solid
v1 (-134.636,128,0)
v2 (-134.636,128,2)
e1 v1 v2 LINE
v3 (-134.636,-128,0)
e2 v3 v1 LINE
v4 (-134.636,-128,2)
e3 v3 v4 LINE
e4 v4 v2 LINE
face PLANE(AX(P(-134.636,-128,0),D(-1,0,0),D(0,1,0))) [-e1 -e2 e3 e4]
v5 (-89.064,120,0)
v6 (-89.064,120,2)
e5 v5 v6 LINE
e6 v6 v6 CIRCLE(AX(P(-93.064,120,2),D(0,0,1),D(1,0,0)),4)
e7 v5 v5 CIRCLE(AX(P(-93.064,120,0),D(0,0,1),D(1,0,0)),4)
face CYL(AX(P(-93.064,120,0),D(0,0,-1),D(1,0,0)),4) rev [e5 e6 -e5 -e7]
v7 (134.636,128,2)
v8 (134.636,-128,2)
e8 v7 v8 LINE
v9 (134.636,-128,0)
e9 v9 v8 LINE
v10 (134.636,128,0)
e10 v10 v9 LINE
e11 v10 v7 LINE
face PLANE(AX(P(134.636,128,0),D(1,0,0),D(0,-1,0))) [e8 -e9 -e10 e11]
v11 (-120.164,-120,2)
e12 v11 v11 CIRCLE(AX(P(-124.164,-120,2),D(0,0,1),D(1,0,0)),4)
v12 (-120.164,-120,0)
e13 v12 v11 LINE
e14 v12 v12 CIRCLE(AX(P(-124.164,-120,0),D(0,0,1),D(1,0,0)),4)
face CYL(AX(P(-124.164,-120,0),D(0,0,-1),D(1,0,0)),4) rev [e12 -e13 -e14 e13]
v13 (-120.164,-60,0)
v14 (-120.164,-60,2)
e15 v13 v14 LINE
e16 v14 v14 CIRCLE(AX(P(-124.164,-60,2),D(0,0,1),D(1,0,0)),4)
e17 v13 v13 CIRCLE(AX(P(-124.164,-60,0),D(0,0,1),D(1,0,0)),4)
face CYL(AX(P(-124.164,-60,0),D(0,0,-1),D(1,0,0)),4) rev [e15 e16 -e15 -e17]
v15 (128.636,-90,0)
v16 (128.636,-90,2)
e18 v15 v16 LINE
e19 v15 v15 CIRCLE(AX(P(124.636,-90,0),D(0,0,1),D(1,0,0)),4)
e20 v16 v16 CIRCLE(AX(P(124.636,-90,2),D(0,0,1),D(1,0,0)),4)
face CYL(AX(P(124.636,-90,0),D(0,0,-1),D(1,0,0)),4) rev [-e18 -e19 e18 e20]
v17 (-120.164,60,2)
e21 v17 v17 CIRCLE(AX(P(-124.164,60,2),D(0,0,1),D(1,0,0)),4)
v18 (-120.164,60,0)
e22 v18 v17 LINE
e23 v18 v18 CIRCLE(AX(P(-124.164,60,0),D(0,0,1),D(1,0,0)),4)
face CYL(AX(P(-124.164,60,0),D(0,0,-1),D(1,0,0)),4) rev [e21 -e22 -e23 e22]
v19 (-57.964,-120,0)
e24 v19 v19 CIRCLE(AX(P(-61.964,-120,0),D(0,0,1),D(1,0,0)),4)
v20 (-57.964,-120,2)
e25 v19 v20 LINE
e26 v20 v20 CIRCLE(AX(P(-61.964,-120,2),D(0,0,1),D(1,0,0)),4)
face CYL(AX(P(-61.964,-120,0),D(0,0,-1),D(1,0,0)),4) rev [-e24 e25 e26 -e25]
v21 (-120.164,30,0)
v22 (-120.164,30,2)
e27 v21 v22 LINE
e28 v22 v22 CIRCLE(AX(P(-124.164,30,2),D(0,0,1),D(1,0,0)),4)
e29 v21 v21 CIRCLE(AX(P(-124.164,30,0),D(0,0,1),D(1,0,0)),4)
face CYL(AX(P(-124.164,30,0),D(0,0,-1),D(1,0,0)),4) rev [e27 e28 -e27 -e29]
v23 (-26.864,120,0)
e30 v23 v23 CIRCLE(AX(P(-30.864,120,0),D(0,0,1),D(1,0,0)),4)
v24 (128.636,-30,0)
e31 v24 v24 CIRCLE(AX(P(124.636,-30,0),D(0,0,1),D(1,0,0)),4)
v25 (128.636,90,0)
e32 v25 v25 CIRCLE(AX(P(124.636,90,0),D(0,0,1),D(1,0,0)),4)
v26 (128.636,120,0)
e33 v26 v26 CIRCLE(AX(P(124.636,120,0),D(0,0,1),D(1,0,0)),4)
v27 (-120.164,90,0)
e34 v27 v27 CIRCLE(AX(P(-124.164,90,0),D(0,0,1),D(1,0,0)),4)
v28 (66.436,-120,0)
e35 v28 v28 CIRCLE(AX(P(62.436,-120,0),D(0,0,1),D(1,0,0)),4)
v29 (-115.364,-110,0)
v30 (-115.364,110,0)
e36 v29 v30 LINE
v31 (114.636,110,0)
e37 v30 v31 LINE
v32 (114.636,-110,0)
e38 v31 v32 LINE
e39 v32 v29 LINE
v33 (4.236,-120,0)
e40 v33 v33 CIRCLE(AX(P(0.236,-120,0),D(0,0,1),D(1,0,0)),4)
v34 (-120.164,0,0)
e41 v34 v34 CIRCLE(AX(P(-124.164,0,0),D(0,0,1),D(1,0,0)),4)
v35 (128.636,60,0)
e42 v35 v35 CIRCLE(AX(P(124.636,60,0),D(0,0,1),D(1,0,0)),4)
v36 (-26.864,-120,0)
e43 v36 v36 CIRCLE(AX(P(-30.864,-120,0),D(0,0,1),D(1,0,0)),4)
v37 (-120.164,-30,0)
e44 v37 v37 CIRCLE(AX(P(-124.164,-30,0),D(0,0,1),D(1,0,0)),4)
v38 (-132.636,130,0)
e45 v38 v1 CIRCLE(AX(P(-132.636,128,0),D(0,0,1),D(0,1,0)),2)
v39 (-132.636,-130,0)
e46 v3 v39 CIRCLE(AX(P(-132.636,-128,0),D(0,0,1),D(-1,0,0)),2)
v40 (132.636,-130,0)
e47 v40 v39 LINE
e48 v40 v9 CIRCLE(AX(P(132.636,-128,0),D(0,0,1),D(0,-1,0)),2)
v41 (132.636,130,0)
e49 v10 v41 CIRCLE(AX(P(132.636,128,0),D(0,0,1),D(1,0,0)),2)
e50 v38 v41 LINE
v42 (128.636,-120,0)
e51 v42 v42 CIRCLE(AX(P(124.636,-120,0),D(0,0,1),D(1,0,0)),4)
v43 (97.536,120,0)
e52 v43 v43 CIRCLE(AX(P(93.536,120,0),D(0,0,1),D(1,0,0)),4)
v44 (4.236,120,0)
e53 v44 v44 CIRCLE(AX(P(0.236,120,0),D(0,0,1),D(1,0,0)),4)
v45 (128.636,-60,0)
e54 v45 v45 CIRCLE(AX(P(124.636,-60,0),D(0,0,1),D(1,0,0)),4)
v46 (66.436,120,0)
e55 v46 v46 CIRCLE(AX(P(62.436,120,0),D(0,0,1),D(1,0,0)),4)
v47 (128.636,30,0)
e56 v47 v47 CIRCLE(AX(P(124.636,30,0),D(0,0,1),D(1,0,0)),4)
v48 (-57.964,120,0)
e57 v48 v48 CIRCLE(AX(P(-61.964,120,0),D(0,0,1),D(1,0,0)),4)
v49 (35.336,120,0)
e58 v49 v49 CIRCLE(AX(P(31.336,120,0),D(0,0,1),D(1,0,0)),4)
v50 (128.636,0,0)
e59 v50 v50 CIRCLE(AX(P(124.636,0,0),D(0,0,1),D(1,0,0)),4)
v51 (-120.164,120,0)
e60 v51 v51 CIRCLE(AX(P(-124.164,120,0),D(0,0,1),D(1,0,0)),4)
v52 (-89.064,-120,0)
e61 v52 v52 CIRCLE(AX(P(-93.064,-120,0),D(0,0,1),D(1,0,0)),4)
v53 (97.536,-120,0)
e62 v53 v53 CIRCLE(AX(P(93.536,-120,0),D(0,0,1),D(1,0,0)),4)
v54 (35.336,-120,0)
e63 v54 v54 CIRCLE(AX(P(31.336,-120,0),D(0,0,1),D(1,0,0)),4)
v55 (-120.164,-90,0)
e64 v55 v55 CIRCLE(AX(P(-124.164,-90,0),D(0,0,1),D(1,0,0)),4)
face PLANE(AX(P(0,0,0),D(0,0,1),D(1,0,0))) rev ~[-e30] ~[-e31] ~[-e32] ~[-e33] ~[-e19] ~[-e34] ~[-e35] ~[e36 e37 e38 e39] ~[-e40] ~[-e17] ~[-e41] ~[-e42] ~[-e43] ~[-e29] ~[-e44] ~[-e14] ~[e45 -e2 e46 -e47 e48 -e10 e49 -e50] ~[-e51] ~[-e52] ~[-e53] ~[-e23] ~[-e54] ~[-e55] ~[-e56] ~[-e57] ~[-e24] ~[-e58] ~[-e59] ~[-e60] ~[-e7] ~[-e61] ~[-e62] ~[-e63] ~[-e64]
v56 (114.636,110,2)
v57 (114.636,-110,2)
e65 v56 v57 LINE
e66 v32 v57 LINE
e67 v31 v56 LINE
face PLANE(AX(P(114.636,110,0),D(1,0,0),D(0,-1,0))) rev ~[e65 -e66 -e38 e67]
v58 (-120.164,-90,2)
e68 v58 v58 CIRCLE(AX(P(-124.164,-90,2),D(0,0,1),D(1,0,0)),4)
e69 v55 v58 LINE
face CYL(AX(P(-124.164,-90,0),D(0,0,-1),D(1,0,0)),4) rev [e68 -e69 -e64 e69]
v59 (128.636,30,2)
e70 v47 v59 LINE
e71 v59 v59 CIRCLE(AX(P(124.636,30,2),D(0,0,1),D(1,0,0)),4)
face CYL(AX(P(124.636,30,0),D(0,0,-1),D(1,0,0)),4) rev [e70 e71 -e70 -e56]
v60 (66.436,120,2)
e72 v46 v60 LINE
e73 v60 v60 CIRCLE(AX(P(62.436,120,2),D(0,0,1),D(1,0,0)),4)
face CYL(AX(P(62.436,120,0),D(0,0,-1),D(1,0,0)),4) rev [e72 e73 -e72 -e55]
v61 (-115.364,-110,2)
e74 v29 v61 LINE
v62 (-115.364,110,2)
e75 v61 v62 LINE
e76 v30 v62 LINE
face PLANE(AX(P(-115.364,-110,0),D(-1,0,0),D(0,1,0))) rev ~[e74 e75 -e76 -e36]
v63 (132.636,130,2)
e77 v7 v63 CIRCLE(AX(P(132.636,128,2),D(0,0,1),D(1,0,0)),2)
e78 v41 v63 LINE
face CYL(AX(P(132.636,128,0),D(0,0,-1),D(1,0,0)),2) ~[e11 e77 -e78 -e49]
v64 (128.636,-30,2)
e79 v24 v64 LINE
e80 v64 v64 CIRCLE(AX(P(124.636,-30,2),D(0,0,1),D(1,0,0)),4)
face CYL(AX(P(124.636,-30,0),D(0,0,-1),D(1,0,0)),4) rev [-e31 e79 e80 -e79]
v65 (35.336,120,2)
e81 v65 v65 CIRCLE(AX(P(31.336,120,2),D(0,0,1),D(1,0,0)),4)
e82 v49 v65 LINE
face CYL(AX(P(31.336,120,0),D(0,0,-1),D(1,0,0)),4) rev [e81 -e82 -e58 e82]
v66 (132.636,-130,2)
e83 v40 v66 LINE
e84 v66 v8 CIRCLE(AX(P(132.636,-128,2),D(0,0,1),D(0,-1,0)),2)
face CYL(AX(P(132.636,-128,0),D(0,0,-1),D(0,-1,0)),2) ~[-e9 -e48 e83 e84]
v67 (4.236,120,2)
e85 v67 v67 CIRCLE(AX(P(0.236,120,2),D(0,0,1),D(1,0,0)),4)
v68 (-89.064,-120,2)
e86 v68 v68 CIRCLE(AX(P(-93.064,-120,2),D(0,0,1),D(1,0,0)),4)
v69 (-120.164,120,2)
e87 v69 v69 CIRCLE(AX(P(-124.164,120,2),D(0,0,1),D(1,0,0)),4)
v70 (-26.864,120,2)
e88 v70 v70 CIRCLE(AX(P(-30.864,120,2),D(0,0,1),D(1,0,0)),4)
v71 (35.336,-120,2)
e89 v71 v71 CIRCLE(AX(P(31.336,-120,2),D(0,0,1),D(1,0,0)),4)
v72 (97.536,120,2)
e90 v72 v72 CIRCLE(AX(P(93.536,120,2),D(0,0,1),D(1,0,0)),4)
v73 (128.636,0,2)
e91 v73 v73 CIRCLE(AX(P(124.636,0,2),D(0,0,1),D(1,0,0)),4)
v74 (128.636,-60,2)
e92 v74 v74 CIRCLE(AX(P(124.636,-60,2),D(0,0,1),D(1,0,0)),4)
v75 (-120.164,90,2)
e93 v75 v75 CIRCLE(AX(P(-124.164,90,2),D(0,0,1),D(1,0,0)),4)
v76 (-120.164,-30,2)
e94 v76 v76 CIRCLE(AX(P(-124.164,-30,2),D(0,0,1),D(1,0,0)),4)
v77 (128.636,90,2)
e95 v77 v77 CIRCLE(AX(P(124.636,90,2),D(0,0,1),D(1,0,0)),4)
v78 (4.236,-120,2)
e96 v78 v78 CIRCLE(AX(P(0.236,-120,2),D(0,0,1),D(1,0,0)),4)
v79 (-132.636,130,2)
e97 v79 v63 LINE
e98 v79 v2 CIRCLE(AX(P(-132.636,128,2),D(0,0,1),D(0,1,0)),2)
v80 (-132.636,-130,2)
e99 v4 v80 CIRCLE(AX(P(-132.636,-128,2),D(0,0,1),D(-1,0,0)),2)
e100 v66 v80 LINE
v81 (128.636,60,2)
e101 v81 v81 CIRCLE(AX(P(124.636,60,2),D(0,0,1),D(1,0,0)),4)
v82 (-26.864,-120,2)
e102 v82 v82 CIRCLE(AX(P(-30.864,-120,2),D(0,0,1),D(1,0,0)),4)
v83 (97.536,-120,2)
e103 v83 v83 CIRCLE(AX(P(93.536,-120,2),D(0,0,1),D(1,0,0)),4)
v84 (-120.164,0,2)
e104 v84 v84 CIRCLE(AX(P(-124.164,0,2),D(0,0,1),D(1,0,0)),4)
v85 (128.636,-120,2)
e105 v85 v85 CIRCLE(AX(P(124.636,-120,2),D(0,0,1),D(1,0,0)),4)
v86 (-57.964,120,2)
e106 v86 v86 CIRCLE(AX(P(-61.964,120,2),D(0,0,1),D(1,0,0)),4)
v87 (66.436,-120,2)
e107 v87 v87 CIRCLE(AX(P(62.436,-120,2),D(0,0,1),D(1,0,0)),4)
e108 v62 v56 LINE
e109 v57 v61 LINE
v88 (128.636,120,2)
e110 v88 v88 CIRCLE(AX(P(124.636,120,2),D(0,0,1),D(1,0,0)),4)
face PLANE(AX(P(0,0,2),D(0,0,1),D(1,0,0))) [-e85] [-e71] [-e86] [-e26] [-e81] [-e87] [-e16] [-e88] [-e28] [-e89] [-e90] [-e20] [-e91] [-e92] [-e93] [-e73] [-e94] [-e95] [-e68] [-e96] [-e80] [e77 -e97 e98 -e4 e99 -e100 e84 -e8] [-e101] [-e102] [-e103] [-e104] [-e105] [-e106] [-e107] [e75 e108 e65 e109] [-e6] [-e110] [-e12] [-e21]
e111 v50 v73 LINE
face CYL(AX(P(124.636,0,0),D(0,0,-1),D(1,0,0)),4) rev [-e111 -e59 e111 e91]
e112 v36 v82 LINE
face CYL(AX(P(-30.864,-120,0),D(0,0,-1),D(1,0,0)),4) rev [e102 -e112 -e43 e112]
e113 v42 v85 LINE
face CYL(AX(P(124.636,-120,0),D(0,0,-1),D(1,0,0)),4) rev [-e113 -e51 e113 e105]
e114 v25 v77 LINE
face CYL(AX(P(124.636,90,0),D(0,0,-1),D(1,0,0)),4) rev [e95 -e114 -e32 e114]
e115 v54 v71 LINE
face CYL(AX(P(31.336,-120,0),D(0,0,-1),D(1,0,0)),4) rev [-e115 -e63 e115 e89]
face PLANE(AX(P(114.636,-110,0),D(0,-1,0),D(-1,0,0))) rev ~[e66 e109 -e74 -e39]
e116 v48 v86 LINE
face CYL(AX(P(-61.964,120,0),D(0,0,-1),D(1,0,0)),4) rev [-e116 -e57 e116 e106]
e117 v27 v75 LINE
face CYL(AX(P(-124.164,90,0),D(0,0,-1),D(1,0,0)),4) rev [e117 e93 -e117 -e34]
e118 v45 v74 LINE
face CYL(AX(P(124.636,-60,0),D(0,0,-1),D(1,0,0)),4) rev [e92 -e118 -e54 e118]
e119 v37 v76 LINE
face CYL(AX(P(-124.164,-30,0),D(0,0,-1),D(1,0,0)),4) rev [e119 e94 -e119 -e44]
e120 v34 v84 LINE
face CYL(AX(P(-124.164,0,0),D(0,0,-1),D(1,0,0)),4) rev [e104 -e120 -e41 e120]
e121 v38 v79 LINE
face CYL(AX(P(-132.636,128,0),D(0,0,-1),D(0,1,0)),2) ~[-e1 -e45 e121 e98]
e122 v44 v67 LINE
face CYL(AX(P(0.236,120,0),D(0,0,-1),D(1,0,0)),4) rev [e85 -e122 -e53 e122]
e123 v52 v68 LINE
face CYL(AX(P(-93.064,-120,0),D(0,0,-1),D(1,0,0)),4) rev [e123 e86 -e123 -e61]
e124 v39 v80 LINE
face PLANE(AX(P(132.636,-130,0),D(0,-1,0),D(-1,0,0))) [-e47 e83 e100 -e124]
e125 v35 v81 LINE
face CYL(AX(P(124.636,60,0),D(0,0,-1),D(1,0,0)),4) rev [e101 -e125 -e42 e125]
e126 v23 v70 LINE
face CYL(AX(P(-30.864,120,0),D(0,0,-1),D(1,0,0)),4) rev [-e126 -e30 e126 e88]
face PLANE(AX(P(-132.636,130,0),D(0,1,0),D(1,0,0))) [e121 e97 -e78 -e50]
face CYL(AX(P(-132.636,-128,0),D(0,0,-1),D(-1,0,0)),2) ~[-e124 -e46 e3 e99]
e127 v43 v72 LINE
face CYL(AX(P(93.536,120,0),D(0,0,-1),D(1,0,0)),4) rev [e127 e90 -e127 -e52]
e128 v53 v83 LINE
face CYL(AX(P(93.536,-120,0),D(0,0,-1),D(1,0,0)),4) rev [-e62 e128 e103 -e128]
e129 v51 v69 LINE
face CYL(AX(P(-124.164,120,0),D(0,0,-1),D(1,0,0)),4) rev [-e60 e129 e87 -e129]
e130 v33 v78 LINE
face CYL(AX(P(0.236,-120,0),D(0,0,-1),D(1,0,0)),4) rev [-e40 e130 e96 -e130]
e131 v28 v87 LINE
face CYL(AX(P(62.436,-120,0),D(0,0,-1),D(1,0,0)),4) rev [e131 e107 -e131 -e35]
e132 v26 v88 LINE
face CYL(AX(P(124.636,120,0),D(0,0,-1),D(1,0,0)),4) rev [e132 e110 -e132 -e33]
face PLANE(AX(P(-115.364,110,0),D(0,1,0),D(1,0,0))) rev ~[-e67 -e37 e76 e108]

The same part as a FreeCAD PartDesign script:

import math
import FreeCAD as App
import Part
import Sketcher
from FreeCAD import Vector
Q = App.Units.Quantity

doc = App.newDocument("Part")
params = doc.addObject("Spreadsheet::Sheet", "Params")
for row, (alias, value) in enumerate([
    ("sketch1_diameter", "8 mm"),
    ("sketch1_radius", "2 mm"),
    ("sketch1_width", "230 mm"),
    ("sketch1_height", "256 mm"),
    ("sketch1_height2", "220 mm"),
    ("pad1_length", "2 mm"),
], start=1):
    params.set(f"A{row}", alias)
    params.set(f"B{row}", "=" + value)
    params.setAlias(f"B{row}", alias)

body = doc.addObject("PartDesign::Body", "Body")

# Sketch on XY plane
sketch1 = body.newObject("Sketcher::SketchObject", "Sketch")
sketch1.AttachmentSupport = (doc.getObject("XY_Plane"), [""])
sketch1.MapMode = "FlatFace"
sketch1.addGeometry([
    Part.LineSegment(Vector(-132.6, -130, 0), Vector(132.6, -130, 0)),  # 0
    Part.ArcOfCircle(Part.Circle(Vector(132.6, -128, 0), Vector(0, 0, 1), 2), math.radians(-90), math.radians(0)),  # 1
    Part.LineSegment(Vector(134.6, -128, 0), Vector(134.6, 128, 0)),  # 2
    Part.ArcOfCircle(Part.Circle(Vector(132.6, 128, 0), Vector(0, 0, 1), 2), math.radians(0), math.radians(90)),  # 3
    Part.LineSegment(Vector(132.6, 130, 0), Vector(-132.6, 130, 0)),  # 4
    Part.ArcOfCircle(Part.Circle(Vector(-132.6, 128, 0), Vector(0, 0, 1), 2), math.radians(90), math.radians(180)),  # 5
    Part.LineSegment(Vector(-134.6, 128, 0), Vector(-134.6, -128, 0)),  # 6
    Part.ArcOfCircle(Part.Circle(Vector(-132.6, -128, 0), Vector(0, 0, 1), 2), math.radians(180), math.radians(270)),  # 7
    Part.Circle(Vector(-124.2, -120, 0), Vector(0, 0, 1), 4),  # 8
    Part.Circle(Vector(-93.1, -120, 0), Vector(0, 0, 1), 4),  # 9
    Part.Circle(Vector(-124.2, -90, 0), Vector(0, 0, 1), 4),  # 10
    Part.Circle(Vector(-62, -120, 0), Vector(0, 0, 1), 4),  # 11
    Part.Circle(Vector(-30.9, -120, 0), Vector(0, 0, 1), 4),  # 12
    Part.Circle(Vector(-124.2, -60, 0), Vector(0, 0, 1), 4),  # 13
    Part.Circle(Vector(-124.2, -30, 0), Vector(0, 0, 1), 4),  # 14
    Part.Circle(Vector(0.2, -120, 0), Vector(0, 0, 1), 4),  # 15
    Part.Circle(Vector(31.3, -120, 0), Vector(0, 0, 1), 4),  # 16
    Part.Circle(Vector(62.4, -120, 0), Vector(0, 0, 1), 4),  # 17
    Part.Circle(Vector(93.5, -120, 0), Vector(0, 0, 1), 4),  # 18
    Part.Circle(Vector(124.6, -120, 0), Vector(0, 0, 1), 4),  # 19
    Part.Circle(Vector(124.6, -90, 0), Vector(0, 0, 1), 4),  # 20
    Part.Circle(Vector(124.6, -60, 0), Vector(0, 0, 1), 4),  # 21
    Part.Circle(Vector(124.6, -30, 0), Vector(0, 0, 1), 4),  # 22
    Part.Circle(Vector(-124.2, 0, 0), Vector(0, 0, 1), 4),  # 23
    Part.Circle(Vector(-124.2, 30, 0), Vector(0, 0, 1), 4),  # 24
    Part.Circle(Vector(-124.2, 60, 0), Vector(0, 0, 1), 4),  # 25
    Part.LineSegment(Vector(114.6, -110, 0), Vector(-115.4, -110, 0)),  # 26
    Part.LineSegment(Vector(-115.4, -110, 0), Vector(-115.4, 110, 0)),  # 27
    Part.LineSegment(Vector(-115.4, 110, 0), Vector(114.6, 110, 0)),  # 28
    Part.LineSegment(Vector(114.6, 110, 0), Vector(114.6, -110, 0)),  # 29
    Part.Circle(Vector(-124.2, 90, 0), Vector(0, 0, 1), 4),  # 30
    Part.Circle(Vector(-124.2, 120, 0), Vector(0, 0, 1), 4),  # 31
    Part.Circle(Vector(-93.1, 120, 0), Vector(0, 0, 1), 4),  # 32
    Part.Circle(Vector(-62, 120, 0), Vector(0, 0, 1), 4),  # 33
    Part.Circle(Vector(-30.9, 120, 0), Vector(0, 0, 1), 4),  # 34
    Part.Circle(Vector(124.6, 0, 0), Vector(0, 0, 1), 4),  # 35
    Part.Circle(Vector(124.6, 30, 0), Vector(0, 0, 1), 4),  # 36
    Part.Circle(Vector(124.6, 60, 0), Vector(0, 0, 1), 4),  # 37
    Part.Circle(Vector(0.2, 120, 0), Vector(0, 0, 1), 4),  # 38
    Part.Circle(Vector(31.3, 120, 0), Vector(0, 0, 1), 4),  # 39
    Part.Circle(Vector(62.4, 120, 0), Vector(0, 0, 1), 4),  # 40
    Part.Circle(Vector(124.6, 90, 0), Vector(0, 0, 1), 4),  # 41
    Part.Circle(Vector(93.5, 120, 0), Vector(0, 0, 1), 4),  # 42
    Part.Circle(Vector(124.6, 120, 0), Vector(0, 0, 1), 4),  # 43
], False)
sketch1.addConstraint([
    Sketcher.Constraint("Tangent", 0, 2, 1, 1),
    Sketcher.Constraint("Tangent", 1, 2, 2, 1),
    Sketcher.Constraint("Tangent", 2, 2, 3, 1),
    Sketcher.Constraint("Tangent", 3, 2, 4, 1),
    Sketcher.Constraint("Tangent", 4, 2, 5, 1),
    Sketcher.Constraint("Tangent", 5, 2, 6, 1),
    Sketcher.Constraint("Tangent", 6, 2, 7, 1),
    Sketcher.Constraint("Tangent", 7, 2, 0, 1),
    Sketcher.Constraint("Coincident", 26, 2, 27, 1),
    Sketcher.Constraint("Coincident", 27, 2, 28, 1),
    Sketcher.Constraint("Coincident", 28, 2, 29, 1),
    Sketcher.Constraint("Coincident", 29, 2, 26, 1),
    Sketcher.Constraint("Horizontal", 0),
    Sketcher.Constraint("Vertical", 2),
    Sketcher.Constraint("Horizontal", 4),
    Sketcher.Constraint("Vertical", 6),
    Sketcher.Constraint("Horizontal", 26),
    Sketcher.Constraint("Vertical", 27),
    Sketcher.Constraint("Horizontal", 28),
    Sketcher.Constraint("Vertical", 29),
    Sketcher.Constraint("Equal", 1, 3),
    Sketcher.Constraint("Equal", 3, 5),
    Sketcher.Constraint("Equal", 5, 7),
    Sketcher.Constraint("Equal", 8, 9),
    Sketcher.Constraint("Equal", 9, 10),
    Sketcher.Constraint("Equal", 10, 11),
    Sketcher.Constraint("Equal", 11, 12),
    Sketcher.Constraint("Equal", 12, 13),
    Sketcher.Constraint("Equal", 13, 14),
    Sketcher.Constraint("Equal", 14, 15),
    Sketcher.Constraint("Equal", 15, 16),
    Sketcher.Constraint("Equal", 16, 17),
    Sketcher.Constraint("Equal", 17, 18),
    Sketcher.Constraint("Equal", 18, 19),
    Sketcher.Constraint("Equal", 19, 20),
    Sketcher.Constraint("Equal", 20, 21),
    Sketcher.Constraint("Equal", 21, 22),
    Sketcher.Constraint("Equal", 22, 23),
    Sketcher.Constraint("Equal", 23, 24),
    Sketcher.Constraint("Equal", 24, 25),
    Sketcher.Constraint("Equal", 25, 30),
    Sketcher.Constraint("Equal", 30, 31),
    Sketcher.Constraint("Equal", 31, 32),
    Sketcher.Constraint("Equal", 32, 33),
    Sketcher.Constraint("Equal", 33, 34),
    Sketcher.Constraint("Equal", 34, 35),
    Sketcher.Constraint("Equal", 35, 36),
    Sketcher.Constraint("Equal", 36, 37),
    Sketcher.Constraint("Equal", 37, 38),
    Sketcher.Constraint("Equal", 38, 39),
    Sketcher.Constraint("Equal", 39, 40),
    Sketcher.Constraint("Equal", 40, 41),
    Sketcher.Constraint("Equal", 41, 42),
    Sketcher.Constraint("Equal", 42, 43),
    Sketcher.Constraint("Symmetric", 1, 3, 5, 3, -1, 1),
    Sketcher.Constraint("Symmetric", 14, 3, 24, 3, -1),
    Sketcher.Constraint("Symmetric", 13, 3, 25, 3, -1),
    Sketcher.Constraint("Symmetric", 10, 3, 30, 3, -1),
    Sketcher.Constraint("Symmetric", 8, 3, 31, 3, -1),
    Sketcher.Constraint("Symmetric", 9, 3, 32, 3, -1),
    Sketcher.Constraint("Symmetric", 11, 3, 33, 3, -1),
    Sketcher.Constraint("Symmetric", 12, 3, 34, 3, -1),
    Sketcher.Constraint("Symmetric", 22, 3, 36, 3, -1),
    Sketcher.Constraint("Symmetric", 21, 3, 37, 3, -1),
    Sketcher.Constraint("Symmetric", 15, 3, 38, 3, -1),
    Sketcher.Constraint("Symmetric", 16, 3, 39, 3, -1),
    Sketcher.Constraint("Symmetric", 17, 3, 40, 3, -1),
    Sketcher.Constraint("Symmetric", 20, 3, 41, 3, -1),
    Sketcher.Constraint("Symmetric", 18, 3, 42, 3, -1),
    Sketcher.Constraint("Symmetric", 19, 3, 43, 3, -1),
    Sketcher.Constraint("PointOnObject", 23, 3, -1),
    Sketcher.Constraint("PointOnObject", 35, 3, -1),
    Sketcher.Constraint("Horizontal", 8, 3, 9, 3),
    Sketcher.Constraint("Horizontal", 9, 3, 11, 3),
    Sketcher.Constraint("Horizontal", 11, 3, 12, 3),
    Sketcher.Constraint("Horizontal", 12, 3, 15, 3),
    Sketcher.Constraint("Horizontal", 15, 3, 16, 3),
    Sketcher.Constraint("Horizontal", 16, 3, 17, 3),
    Sketcher.Constraint("Horizontal", 17, 3, 18, 3),
    Sketcher.Constraint("Horizontal", 18, 3, 19, 3),
    Sketcher.Constraint("Horizontal", 10, 3, 20, 3),
    Sketcher.Constraint("Horizontal", 13, 3, 21, 3),
    Sketcher.Constraint("Horizontal", 14, 3, 22, 3),
    Sketcher.Constraint("Vertical", 8, 3, 10, 3),
    Sketcher.Constraint("Vertical", 10, 3, 13, 3),
    Sketcher.Constraint("Vertical", 13, 3, 14, 3),
    Sketcher.Constraint("Vertical", 19, 3, 20, 3),
    Sketcher.Constraint("Vertical", 20, 3, 21, 3),
    Sketcher.Constraint("Vertical", 21, 3, 22, 3),
    Sketcher.Constraint("Vertical", 14, 3, 23, 3),
    Sketcher.Constraint("Vertical", 22, 3, 35, 3),
    Sketcher.Constraint("Diameter", 8, Q("8 mm")),
    Sketcher.Constraint("Radius", 1, Q("2 mm")),
    Sketcher.Constraint("DistanceX", 26, 2, 26, 1, Q("230 mm")),
    Sketcher.Constraint("DistanceY", 2, 1, 2, 2, Q("256 mm")),
    Sketcher.Constraint("DistanceY", 27, 1, 27, 2, Q("220 mm")),
    Sketcher.Constraint("DistanceY", 8, 3, -1, 1, Q("120 mm")),
    Sketcher.Constraint("DistanceY", 10, 3, -1, 1, Q("90 mm")),
    Sketcher.Constraint("DistanceY", 13, 3, -1, 1, Q("60 mm")),
    Sketcher.Constraint("DistanceY", 14, 3, -1, 1, Q("30 mm")),
    Sketcher.Constraint("DistanceY", 26, 2, -1, 1, Q("110 mm")),
    Sketcher.Constraint("DistanceX", 19, 3, 1, 3, Q("8 mm")),
    Sketcher.Constraint("DistanceX", 28, 2, 43, 3, Q("10 mm")),
    Sketcher.Constraint("DistanceX", 8, 3, 1, 3, Q("256.8 mm")),
    Sketcher.Constraint("DistanceX", 8, 3, 9, 3, Q("31.1 mm")),
    Sketcher.Constraint("DistanceX", 9, 3, 11, 3, Q("31.1 mm")),
    Sketcher.Constraint("DistanceX", 11, 3, 12, 3, Q("31.1 mm")),
    Sketcher.Constraint("DistanceX", 12, 3, 15, 3, Q("31.1 mm")),
    Sketcher.Constraint("DistanceX", 15, 3, 16, 3, Q("31.1 mm")),
    Sketcher.Constraint("DistanceX", 16, 3, 17, 3, Q("31.1 mm")),
    Sketcher.Constraint("DistanceX", 17, 3, 18, 3, Q("31.1 mm")),
    Sketcher.Constraint("DistanceX", 0, 1, 0, 2, Q("265.272 mm")),
])
sketch1.setExpression("Constraints[91]", "Params.sketch1_diameter")
sketch1.setExpression("Constraints[92]", "Params.sketch1_radius")
sketch1.setExpression("Constraints[93]", "Params.sketch1_width")
sketch1.setExpression("Constraints[94]", "Params.sketch1_height")
sketch1.setExpression("Constraints[95]", "Params.sketch1_height2")
pad1 = body.newObject("PartDesign::Pad", "Pad")
pad1.Profile = sketch1
pad1.setExpression("Length", "Params.pad1_length")

doc.recompute()
